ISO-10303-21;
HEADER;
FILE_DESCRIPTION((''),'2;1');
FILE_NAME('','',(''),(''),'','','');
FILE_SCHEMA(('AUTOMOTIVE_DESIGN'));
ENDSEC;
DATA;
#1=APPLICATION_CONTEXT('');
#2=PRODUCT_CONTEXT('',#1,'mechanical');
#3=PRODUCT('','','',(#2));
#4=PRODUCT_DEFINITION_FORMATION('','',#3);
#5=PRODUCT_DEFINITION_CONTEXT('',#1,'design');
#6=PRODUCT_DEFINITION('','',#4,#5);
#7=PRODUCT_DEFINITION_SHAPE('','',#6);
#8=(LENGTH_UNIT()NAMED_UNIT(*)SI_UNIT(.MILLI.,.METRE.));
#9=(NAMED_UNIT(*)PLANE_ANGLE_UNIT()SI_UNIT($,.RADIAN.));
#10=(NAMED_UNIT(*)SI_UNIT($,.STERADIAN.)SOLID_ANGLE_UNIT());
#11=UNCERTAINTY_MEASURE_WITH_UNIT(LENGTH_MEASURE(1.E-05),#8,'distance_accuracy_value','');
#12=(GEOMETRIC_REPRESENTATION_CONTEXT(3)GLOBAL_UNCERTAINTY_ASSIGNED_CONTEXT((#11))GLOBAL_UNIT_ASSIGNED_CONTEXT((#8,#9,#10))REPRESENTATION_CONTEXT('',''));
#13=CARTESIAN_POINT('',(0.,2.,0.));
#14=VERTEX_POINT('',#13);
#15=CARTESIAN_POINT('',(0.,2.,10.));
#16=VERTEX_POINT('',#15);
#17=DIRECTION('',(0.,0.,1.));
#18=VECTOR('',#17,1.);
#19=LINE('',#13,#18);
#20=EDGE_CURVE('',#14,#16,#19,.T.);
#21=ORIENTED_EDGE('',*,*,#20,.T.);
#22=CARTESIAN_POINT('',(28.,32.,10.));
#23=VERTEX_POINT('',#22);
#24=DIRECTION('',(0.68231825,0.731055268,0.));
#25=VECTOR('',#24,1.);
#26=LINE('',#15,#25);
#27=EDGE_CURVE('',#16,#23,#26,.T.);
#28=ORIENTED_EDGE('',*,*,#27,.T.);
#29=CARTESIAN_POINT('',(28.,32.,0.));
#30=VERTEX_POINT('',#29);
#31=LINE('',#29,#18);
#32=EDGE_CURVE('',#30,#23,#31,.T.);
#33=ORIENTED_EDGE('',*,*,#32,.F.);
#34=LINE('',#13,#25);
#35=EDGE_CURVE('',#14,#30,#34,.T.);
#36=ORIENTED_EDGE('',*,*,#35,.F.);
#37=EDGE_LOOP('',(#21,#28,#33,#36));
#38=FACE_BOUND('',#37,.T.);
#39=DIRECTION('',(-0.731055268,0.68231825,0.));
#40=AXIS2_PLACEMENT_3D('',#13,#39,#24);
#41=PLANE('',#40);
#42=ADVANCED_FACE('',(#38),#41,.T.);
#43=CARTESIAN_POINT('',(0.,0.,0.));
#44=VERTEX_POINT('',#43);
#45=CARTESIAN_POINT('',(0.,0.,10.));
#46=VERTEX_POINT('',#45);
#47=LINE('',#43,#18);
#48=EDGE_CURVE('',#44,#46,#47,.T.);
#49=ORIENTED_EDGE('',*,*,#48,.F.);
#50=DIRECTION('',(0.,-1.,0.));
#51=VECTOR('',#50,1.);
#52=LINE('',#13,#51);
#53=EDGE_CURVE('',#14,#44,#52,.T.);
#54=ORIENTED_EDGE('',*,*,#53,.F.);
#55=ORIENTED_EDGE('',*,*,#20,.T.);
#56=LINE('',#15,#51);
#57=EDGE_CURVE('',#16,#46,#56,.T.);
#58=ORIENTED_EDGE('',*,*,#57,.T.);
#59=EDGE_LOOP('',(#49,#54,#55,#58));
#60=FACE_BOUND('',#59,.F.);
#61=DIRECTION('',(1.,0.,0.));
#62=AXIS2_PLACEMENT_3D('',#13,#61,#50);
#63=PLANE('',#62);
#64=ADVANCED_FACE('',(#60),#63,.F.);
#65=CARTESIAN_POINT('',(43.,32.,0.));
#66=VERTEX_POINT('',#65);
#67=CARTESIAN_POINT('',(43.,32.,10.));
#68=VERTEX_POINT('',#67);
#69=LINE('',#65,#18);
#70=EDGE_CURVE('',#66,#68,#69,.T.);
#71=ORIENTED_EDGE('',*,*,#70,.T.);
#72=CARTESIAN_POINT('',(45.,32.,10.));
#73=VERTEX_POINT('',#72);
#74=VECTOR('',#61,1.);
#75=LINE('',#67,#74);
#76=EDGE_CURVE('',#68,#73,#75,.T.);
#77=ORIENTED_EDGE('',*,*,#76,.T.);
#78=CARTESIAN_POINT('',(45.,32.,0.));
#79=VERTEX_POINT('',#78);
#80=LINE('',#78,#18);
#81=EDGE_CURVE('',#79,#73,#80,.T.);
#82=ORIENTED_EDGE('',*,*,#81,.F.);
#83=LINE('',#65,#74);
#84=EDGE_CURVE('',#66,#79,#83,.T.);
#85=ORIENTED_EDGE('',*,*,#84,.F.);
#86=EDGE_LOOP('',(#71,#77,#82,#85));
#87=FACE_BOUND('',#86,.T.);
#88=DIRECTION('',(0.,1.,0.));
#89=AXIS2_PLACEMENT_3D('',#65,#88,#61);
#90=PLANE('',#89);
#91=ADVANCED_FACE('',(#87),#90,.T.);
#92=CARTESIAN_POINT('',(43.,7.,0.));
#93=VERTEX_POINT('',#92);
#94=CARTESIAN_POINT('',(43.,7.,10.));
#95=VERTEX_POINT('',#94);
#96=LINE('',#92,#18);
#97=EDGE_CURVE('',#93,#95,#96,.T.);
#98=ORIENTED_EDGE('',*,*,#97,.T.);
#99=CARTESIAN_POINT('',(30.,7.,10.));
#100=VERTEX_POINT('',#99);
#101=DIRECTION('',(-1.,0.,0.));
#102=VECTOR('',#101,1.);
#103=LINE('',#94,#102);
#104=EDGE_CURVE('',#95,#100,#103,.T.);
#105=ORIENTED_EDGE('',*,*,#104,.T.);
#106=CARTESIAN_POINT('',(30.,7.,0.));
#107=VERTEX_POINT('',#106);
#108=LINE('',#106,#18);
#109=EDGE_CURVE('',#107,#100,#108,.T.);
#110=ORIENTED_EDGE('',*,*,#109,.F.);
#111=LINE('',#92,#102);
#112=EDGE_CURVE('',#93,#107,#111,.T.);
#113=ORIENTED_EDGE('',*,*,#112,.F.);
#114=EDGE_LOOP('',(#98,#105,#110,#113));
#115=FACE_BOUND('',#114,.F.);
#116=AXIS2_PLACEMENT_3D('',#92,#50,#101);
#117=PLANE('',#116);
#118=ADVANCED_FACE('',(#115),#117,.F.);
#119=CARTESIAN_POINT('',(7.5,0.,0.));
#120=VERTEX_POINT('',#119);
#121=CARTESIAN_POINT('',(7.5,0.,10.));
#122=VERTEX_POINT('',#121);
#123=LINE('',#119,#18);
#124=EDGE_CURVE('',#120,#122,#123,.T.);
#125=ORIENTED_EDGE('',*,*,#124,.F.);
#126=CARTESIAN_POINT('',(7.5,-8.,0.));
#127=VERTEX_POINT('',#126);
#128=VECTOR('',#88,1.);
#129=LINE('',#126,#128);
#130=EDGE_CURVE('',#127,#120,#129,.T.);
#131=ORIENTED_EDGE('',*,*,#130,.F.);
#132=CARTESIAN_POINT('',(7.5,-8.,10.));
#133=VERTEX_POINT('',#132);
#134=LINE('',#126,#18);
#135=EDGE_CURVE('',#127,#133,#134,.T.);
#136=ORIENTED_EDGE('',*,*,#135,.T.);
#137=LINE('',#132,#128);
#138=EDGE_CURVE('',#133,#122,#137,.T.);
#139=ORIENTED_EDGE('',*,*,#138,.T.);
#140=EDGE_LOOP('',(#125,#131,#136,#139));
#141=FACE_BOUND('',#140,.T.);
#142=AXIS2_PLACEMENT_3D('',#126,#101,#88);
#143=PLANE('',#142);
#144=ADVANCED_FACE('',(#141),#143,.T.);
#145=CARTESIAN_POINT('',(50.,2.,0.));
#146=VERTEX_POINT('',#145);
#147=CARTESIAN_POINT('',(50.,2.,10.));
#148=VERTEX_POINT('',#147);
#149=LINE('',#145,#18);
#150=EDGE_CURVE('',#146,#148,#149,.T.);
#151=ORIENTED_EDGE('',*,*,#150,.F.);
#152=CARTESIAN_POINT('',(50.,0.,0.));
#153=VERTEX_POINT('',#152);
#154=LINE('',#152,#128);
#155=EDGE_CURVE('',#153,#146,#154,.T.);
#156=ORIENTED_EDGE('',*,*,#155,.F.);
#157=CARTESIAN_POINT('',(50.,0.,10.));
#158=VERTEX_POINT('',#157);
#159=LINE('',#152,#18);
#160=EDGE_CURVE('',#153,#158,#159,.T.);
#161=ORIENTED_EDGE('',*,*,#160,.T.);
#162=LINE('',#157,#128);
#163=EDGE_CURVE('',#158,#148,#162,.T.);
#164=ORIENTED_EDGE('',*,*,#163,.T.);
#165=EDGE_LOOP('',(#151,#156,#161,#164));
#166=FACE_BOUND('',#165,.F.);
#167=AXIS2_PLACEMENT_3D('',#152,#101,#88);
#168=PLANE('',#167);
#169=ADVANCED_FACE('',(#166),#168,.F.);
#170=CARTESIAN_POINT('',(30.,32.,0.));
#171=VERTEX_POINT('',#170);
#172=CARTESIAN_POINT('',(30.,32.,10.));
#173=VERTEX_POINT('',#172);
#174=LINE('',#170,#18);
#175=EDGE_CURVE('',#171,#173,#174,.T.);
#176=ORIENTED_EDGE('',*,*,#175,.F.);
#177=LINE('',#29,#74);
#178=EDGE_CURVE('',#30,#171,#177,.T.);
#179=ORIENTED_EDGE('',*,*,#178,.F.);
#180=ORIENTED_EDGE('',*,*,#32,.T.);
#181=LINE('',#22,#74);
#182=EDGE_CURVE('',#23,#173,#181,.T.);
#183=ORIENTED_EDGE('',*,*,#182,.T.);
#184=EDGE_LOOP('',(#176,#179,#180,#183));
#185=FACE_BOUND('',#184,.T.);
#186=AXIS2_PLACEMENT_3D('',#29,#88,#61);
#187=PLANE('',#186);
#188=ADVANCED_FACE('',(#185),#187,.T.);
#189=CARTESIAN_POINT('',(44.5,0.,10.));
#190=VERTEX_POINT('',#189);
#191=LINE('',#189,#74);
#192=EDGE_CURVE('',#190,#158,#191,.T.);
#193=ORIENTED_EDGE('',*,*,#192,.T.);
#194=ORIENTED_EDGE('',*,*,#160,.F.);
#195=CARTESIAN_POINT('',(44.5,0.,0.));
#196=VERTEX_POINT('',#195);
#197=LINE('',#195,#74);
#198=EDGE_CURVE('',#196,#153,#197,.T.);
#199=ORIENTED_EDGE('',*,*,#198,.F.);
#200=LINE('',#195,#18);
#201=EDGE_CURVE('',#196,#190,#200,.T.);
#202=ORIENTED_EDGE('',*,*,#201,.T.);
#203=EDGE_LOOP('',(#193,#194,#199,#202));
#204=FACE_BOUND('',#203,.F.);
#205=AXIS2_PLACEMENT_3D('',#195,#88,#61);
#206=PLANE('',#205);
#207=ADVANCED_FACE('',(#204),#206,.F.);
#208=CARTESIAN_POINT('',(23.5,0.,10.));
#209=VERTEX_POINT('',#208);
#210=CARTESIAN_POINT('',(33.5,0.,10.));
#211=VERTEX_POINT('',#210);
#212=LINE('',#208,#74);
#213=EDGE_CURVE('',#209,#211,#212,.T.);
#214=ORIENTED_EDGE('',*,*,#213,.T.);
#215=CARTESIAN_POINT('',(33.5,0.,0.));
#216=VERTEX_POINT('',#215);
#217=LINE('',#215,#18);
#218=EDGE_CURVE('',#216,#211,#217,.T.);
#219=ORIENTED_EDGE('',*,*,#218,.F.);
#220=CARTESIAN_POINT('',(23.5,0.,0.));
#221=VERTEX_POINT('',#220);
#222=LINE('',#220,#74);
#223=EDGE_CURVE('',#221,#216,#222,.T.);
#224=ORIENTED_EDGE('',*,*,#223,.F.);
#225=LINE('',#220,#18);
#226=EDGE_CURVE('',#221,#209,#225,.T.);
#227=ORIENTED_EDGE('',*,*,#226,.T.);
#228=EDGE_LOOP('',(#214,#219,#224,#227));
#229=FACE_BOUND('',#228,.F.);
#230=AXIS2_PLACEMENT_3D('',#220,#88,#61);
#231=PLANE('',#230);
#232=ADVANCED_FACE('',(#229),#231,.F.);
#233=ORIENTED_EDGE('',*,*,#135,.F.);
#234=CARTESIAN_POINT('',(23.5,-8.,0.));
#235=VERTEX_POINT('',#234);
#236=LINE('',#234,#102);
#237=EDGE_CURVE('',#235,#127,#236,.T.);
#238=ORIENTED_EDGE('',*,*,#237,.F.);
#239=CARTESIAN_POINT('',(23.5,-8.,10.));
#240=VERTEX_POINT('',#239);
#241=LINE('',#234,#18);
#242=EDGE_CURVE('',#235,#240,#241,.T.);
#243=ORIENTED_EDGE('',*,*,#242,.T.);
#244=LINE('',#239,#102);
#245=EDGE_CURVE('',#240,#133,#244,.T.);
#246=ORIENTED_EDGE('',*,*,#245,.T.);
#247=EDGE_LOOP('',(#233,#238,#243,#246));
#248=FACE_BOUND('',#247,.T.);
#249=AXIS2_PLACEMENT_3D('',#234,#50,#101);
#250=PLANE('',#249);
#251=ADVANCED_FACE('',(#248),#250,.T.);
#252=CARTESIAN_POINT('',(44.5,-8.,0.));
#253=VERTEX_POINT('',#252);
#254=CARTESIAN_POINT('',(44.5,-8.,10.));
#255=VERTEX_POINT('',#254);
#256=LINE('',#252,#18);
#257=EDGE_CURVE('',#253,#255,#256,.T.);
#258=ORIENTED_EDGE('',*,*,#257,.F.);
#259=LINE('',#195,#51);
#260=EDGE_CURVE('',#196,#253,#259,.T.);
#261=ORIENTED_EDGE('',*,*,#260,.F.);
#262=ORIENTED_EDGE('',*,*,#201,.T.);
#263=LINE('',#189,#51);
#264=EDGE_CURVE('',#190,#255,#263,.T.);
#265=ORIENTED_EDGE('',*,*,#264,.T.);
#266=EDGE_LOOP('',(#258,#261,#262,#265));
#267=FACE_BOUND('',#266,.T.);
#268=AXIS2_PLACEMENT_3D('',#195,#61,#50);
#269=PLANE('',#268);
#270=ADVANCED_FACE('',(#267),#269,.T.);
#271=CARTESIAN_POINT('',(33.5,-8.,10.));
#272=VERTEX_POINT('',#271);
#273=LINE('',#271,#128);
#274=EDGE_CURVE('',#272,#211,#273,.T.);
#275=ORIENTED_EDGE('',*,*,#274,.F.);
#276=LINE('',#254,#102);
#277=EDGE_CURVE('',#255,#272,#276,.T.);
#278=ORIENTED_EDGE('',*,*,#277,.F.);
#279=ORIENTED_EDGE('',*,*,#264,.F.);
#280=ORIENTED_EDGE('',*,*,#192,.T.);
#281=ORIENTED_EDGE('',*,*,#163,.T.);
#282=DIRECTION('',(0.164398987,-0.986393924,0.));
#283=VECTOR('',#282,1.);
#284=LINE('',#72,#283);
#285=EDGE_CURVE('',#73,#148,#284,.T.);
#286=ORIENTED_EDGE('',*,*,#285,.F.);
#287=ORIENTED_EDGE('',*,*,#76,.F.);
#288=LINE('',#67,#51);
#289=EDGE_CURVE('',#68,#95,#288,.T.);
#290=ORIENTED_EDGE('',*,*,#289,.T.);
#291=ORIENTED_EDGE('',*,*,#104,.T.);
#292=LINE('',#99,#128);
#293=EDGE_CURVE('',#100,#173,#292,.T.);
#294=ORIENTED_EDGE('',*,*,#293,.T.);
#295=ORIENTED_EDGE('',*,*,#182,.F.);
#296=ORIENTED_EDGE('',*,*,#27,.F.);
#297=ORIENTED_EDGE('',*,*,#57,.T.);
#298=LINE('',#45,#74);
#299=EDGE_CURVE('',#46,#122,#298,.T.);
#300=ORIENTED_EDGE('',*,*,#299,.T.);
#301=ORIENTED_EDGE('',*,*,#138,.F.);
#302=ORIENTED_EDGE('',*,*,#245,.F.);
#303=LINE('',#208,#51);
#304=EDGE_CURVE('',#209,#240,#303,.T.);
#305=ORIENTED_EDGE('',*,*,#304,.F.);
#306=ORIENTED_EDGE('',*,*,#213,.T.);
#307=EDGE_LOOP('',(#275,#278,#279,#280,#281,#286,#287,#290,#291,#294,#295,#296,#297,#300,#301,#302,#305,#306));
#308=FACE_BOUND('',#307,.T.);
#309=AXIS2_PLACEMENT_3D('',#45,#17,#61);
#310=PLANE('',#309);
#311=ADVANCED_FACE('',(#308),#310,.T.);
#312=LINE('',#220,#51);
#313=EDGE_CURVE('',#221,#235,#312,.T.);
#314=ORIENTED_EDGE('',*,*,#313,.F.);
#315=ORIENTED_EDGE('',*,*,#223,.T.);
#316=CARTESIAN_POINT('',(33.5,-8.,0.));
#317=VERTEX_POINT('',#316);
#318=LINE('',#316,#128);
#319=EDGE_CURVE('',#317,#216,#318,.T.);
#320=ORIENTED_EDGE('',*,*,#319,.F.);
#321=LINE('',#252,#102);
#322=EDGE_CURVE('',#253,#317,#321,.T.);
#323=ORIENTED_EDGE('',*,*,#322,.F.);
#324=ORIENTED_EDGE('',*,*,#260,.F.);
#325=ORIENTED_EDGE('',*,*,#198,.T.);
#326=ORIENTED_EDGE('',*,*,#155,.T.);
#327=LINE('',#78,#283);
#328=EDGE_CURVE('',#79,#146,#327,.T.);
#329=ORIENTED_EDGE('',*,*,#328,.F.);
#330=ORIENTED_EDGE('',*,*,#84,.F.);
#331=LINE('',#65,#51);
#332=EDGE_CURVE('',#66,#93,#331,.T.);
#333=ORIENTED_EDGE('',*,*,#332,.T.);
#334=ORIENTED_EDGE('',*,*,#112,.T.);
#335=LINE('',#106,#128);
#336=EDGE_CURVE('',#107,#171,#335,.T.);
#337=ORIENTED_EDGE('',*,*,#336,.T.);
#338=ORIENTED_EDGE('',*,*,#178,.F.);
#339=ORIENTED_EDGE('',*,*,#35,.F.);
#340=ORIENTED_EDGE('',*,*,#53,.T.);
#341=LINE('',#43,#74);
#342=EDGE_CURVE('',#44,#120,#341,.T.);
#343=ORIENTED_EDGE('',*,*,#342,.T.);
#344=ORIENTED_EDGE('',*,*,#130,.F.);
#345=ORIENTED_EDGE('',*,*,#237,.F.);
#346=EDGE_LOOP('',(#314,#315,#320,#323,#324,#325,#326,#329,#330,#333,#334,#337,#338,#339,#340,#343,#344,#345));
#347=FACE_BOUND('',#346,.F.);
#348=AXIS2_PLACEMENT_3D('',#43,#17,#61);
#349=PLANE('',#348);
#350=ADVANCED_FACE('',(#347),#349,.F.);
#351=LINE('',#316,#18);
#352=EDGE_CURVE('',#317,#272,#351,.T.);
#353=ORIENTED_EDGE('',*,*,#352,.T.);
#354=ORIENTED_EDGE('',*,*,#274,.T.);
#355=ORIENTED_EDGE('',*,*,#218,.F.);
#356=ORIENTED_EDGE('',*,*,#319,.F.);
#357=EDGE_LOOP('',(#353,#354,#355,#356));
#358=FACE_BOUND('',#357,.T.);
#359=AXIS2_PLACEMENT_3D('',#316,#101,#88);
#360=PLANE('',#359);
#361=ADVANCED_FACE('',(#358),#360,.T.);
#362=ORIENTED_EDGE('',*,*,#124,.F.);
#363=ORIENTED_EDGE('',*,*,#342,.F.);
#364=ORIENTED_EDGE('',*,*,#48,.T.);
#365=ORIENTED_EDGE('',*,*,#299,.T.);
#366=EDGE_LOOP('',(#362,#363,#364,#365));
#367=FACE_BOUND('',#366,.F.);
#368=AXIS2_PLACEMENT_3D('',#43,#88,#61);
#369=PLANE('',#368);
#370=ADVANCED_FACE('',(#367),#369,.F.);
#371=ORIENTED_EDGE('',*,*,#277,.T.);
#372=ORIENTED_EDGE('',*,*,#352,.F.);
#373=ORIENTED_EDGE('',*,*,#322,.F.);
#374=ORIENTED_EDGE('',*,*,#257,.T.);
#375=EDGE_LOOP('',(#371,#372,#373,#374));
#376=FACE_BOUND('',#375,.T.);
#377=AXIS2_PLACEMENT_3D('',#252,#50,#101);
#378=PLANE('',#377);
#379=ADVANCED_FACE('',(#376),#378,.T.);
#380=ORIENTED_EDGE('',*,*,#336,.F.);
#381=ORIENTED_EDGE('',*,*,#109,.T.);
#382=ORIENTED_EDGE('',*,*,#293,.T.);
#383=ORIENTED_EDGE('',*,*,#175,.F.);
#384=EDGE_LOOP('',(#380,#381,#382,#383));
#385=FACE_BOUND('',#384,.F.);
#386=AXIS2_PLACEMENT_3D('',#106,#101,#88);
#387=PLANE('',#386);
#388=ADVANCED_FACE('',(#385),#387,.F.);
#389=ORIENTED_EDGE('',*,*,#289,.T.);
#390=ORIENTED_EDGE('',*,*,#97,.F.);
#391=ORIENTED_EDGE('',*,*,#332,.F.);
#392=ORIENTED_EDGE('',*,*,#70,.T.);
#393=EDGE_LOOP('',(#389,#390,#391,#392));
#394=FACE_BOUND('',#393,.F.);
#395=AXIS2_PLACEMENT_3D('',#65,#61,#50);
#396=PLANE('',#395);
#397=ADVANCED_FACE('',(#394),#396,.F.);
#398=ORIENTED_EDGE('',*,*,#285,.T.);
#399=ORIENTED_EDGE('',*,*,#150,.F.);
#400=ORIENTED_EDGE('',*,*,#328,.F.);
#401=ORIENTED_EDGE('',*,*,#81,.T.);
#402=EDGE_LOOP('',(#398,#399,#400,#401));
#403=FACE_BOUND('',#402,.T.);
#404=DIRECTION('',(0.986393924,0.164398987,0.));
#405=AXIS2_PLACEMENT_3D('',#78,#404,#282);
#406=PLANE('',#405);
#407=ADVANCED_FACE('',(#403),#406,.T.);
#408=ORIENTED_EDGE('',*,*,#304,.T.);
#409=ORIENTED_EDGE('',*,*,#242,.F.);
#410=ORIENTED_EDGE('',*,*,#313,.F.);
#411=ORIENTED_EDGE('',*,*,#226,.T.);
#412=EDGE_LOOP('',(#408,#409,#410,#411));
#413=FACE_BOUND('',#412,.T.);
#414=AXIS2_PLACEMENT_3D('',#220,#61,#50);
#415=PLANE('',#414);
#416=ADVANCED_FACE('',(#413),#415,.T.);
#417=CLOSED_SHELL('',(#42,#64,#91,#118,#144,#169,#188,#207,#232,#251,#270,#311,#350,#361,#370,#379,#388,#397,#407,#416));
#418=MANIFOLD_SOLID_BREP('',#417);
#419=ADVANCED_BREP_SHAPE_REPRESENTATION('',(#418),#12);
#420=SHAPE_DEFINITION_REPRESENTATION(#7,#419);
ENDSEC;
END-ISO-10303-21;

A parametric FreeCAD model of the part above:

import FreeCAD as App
import Part
import Sketcher
from FreeCAD import Vector
Q = App.Units.Quantity


def add_polygon(sketch, points):
    """Adds a closed chain of lines whose ends are joined by coincident constraints."""
    first, n = sketch.GeometryCount, len(points)
    for a, b in zip(points, points[1:] + points[:1]):
        sketch.addGeometry(Part.LineSegment(App.Vector(*a, 0), App.Vector(*b, 0)), False)
    for i in range(n):
        sketch.addConstraint(Sketcher.Constraint("Coincident", first + i, 2, first + (i + 1) % n, 1))

doc = App.newDocument("Part")
body = doc.addObject("PartDesign::Body", "Body")

# Sketch on XY plane
sketch1 = body.newObject("Sketcher::SketchObject", "Sketch")
sketch1.AttachmentSupport = (doc.getObject("XY_Plane"), [""])
sketch1.MapMode = "FlatFace"
add_polygon(sketch1, [(44.5, 0), (50, 0), (50, 2), (45, 32), (43, 32), (43, 7), (30, 7), (30, 32), (28, 32), (0, 2), (0, 0), (7.5, 0), (7.5, -8), (23.5, -8), (23.5, 0), (33.5, 0), (33.5, -8), (44.5, -8)])  # lines 0-17
sketch1.addConstraint(Sketcher.Constraint("Horizontal", 0))
sketch1.addConstraint(Sketcher.Constraint("Vertical", 1))
sketch1.addConstraint(Sketcher.Constraint("Horizontal", 3))
sketch1.addConstraint(Sketcher.Constraint("Vertical", 4))
sketch1.addConstraint(Sketcher.Constraint("Horizontal", 5))
sketch1.addConstraint(Sketcher.Constraint("Vertical", 6))
sketch1.addConstraint(Sketcher.Constraint("Horizontal", 7))
sketch1.addConstraint(Sketcher.Constraint("Vertical", 9))
sketch1.addConstraint(Sketcher.Constraint("Horizontal", 10))
sketch1.addConstraint(Sketcher.Constraint("Vertical", 11))
sketch1.addConstraint(Sketcher.Constraint("Horizontal", 12))
sketch1.addConstraint(Sketcher.Constraint("Vertical", 13))
sketch1.addConstraint(Sketcher.Constraint("Horizontal", 14))
sketch1.addConstraint(Sketcher.Constraint("Vertical", 15))
sketch1.addConstraint(Sketcher.Constraint("Horizontal", 16))
sketch1.addConstraint(Sketcher.Constraint("Vertical", 17))
sketch1.addConstraint(Sketcher.Constraint("Coincident", 9, 2, -1, 1))
sketch1.addConstraint(Sketcher.Constraint("PointOnObject", 0, 2, -1))
sketch1.addConstraint(Sketcher.Constraint("PointOnObject", 13, 2, -1))
sketch1.addConstraint(Sketcher.Constraint("Horizontal", 3, 2, 6, 2))
sketch1.addConstraint(Sketcher.Constraint("Horizontal", 1, 2, 8, 2))
sketch1.addConstraint(Sketcher.Constraint("Horizontal", 12, 2, 15, 2))
sketch1.addConstraint(Sketcher.Constraint("Equal", 3, 7))
sketch1.addConstraint(Sketcher.Constraint("Equal", 7, 1))
sketch1.addConstraint(Sketcher.Constraint("DistanceX", 5, 2, 5, 1, Q("13 mm")))
sketch1.addConstraint(Sketcher.Constraint("DistanceX", 12, 1, 12, 2, Q("16 mm")))
sketch1.addConstraint(Sketcher.Constraint("DistanceX", 16, 1, 16, 2, Q("11 mm")))
sketch1.addConstraint(Sketcher.Constraint("DistanceY", 4, 2, 4, 1, Q("25 mm")))
sketch1.addConstraint(Sketcher.Constraint("DistanceY", 11, 2, 11, 1, Q("8 mm")))
sketch1.addConstraint(Sketcher.Constraint("DistanceX", 0, 1, 0, 2, Q("5.5 mm")))
sketch1.addConstraint(Sketcher.Constraint("DistanceX", 10, 1, 10, 2, Q("7.5 mm")))
sketch1.addConstraint(Sketcher.Constraint("DistanceX", -1, 1, 0, 2, Q("50 mm")))
sketch1.addConstraint(Sketcher.Constraint("DistanceY", -1, 1, 4, 2, Q("7 mm")))
sketch1.addConstraint(Sketcher.Constraint("DistanceX", -1, 1, 5, 2, Q("30 mm")))
sketch1.addConstraint(Sketcher.Constraint("DistanceY", 1, 2, 2, 2, Q("30 mm")))
pad1 = body.newObject("PartDesign::Pad", "Pad")
pad1.Profile = sketch1
pad1.Length = 10

doc.recompute()
